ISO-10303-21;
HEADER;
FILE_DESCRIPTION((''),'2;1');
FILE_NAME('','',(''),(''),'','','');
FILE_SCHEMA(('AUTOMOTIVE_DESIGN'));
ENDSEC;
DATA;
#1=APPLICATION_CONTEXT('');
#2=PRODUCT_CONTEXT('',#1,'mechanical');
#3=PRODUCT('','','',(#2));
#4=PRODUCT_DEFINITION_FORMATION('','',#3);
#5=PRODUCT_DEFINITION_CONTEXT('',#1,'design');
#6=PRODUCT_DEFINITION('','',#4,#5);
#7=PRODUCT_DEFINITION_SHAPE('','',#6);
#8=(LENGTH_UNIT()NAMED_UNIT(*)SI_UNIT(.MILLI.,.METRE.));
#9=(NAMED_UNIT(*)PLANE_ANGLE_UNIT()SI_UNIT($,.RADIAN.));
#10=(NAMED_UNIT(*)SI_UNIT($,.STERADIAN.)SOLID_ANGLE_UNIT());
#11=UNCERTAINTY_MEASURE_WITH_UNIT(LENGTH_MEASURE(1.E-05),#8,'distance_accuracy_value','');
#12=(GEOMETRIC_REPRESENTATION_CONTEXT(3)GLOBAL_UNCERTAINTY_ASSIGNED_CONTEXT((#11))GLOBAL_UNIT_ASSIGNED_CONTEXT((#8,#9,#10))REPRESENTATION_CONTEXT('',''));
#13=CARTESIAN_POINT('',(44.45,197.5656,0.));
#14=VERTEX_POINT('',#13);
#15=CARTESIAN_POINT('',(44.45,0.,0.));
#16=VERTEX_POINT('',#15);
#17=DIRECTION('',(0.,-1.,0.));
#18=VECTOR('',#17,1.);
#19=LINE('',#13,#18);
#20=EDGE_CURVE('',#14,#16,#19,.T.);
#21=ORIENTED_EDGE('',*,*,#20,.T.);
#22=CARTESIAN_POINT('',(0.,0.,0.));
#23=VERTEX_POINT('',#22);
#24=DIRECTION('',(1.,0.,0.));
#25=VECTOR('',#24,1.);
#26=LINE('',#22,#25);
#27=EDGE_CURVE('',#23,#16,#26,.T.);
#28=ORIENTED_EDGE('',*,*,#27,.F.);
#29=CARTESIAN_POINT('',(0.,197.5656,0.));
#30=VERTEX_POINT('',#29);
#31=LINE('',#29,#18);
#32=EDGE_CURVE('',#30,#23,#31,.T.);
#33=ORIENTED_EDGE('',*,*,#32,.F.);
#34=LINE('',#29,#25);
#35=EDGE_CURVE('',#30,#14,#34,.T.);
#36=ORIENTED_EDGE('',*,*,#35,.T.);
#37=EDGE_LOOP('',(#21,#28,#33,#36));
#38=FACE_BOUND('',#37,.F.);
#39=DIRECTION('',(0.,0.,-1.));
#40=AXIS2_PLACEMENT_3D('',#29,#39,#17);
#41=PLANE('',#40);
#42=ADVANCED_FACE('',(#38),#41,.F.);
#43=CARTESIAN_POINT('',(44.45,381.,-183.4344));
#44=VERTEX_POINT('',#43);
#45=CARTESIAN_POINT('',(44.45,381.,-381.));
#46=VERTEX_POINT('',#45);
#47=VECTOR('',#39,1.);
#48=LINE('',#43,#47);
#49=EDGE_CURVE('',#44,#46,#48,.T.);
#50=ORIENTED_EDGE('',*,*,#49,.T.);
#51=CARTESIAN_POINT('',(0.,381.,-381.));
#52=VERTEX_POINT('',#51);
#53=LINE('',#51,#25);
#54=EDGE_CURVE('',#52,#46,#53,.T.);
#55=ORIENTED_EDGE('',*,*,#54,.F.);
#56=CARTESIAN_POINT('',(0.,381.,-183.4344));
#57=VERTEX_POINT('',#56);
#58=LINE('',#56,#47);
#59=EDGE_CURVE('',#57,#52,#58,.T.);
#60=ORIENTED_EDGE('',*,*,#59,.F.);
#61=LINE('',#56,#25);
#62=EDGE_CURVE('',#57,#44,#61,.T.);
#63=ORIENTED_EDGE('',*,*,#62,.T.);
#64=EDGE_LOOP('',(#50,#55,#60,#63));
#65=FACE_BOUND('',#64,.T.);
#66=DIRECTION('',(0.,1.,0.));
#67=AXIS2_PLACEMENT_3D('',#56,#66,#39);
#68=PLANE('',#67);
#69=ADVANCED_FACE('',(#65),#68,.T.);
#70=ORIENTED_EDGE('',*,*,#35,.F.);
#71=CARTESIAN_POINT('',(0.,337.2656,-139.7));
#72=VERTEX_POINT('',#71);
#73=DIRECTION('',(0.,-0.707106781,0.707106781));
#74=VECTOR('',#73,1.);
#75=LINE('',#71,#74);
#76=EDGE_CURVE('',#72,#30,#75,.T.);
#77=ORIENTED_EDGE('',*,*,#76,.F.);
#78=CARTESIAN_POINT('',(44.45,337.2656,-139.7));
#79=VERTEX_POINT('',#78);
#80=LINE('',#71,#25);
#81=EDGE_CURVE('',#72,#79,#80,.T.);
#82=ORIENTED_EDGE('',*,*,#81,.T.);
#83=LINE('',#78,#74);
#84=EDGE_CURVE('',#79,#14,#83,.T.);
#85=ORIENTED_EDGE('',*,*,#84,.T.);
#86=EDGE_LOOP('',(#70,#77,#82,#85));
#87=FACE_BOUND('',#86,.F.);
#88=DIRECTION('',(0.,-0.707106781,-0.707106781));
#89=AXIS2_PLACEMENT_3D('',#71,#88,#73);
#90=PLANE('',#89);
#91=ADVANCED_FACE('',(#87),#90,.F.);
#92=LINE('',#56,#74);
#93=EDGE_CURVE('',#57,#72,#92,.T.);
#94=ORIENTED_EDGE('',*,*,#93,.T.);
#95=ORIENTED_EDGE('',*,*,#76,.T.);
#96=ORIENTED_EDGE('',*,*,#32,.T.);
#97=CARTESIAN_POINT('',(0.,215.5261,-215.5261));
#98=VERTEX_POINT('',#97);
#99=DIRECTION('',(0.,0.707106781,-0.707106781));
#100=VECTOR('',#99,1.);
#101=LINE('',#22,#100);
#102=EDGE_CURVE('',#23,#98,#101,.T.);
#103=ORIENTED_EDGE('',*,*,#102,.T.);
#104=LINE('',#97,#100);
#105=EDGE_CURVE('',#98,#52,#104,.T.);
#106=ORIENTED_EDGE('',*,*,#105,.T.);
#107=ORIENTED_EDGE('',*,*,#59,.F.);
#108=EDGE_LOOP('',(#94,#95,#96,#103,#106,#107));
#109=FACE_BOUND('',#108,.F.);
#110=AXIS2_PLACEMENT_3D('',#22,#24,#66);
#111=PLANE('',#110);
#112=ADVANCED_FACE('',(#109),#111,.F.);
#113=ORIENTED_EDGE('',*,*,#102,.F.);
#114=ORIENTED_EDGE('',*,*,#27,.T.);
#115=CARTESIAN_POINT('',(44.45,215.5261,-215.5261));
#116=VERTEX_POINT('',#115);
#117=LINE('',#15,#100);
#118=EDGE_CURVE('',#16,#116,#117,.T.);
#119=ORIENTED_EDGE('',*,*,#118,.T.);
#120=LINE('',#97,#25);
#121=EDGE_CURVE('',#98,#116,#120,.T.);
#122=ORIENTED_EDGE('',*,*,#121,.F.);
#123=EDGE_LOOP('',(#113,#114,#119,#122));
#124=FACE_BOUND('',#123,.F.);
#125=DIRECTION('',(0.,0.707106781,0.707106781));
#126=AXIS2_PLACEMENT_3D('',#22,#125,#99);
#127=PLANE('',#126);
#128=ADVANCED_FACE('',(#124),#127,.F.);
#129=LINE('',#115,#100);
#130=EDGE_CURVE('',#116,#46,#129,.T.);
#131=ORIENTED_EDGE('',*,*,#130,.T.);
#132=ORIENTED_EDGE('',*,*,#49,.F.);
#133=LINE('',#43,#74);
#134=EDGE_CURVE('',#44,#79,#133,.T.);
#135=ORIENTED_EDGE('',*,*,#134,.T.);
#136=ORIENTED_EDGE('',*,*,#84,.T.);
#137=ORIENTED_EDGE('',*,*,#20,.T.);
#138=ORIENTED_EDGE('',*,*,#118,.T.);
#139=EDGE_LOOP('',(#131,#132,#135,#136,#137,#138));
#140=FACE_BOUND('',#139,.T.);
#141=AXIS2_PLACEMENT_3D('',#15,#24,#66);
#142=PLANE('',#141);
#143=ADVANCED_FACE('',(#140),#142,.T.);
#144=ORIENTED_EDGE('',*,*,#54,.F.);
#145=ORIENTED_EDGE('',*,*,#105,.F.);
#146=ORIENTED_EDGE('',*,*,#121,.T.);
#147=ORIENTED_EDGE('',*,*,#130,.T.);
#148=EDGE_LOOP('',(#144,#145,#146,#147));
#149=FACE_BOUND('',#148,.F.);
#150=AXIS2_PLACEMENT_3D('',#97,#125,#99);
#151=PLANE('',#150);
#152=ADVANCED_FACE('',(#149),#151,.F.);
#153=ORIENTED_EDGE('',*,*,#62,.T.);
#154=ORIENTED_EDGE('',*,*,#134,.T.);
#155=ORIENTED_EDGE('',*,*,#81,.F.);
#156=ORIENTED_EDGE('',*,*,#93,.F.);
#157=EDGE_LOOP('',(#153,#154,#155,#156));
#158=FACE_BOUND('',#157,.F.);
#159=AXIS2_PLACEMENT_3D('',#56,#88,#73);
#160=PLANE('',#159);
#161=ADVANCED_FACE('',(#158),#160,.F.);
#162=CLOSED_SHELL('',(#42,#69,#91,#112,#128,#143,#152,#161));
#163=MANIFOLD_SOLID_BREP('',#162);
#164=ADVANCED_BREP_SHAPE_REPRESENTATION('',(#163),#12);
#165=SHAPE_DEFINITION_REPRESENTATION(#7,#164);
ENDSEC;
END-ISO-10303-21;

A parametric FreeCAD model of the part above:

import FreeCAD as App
import Part
import Sketcher
from FreeCAD import Vector
Q = App.Units.Quantity


def add_polygon(sketch, points):
    """Adds a closed chain of lines whose ends are joined by coincident constraints."""
    first, n = sketch.GeometryCount, len(points)
    for a, b in zip(points, points[1:] + points[:1]):
        sketch.addGeometry(Part.LineSegment(App.Vector(*a, 0), App.Vector(*b, 0)), False)
    for i in range(n):
        sketch.addConstraint(Sketcher.Constraint("Coincident", first + i, 2, first + (i + 1) % n, 1))

doc = App.newDocument("Part")
body = doc.addObject("PartDesign::Body", "Body")

# Sketch on YZ plane
sketch1 = body.newObject("Sketcher::SketchObject", "Sketch")
sketch1.AttachmentSupport = (doc.getObject("YZ_Plane"), [""])
sketch1.MapMode = "FlatFace"
add_polygon(sketch1, [(198, 0), (0, 0), (381, -381), (381, -183)])  # lines 0-3
sketch1.addConstraint([
    Sketcher.Constraint("Horizontal", 0),
    Sketcher.Constraint("Vertical", 2),
    Sketcher.Constraint("Coincident", 0, 2, -1, 1),
    Sketcher.Constraint("Parallel", 1, 3),
    Sketcher.Constraint("Equal", 0, 2),
    Sketcher.Constraint("DistanceX", -1, 1, 1, 2, Q("15 in")),
    Sketcher.Constraint("Distance", 3, Q("10.2132 in")),
])
pad1 = body.newObject("PartDesign::Pad", "Pad")
pad1.Profile = sketch1
pad1.Length = Q("1.75 in")

doc.recompute()
